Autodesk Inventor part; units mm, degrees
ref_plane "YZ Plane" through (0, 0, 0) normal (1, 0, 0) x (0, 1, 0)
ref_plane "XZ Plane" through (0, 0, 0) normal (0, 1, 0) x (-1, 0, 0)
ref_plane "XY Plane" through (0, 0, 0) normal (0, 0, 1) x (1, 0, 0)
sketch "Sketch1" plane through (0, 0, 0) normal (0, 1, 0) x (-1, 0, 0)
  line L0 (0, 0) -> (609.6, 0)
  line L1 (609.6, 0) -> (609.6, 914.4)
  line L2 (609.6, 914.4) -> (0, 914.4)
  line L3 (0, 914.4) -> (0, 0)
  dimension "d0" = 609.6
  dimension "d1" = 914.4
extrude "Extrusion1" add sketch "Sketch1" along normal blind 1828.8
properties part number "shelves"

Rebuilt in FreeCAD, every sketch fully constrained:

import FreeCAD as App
import Part
import Sketcher

V = App.Vector
Q = App.Units.Quantity


def add_polygon(sketch, points):
    """Adds a closed chain of lines whose ends are joined by coincident constraints."""
    first, n = sketch.GeometryCount, len(points)
    for a, b in zip(points, points[1:] + points[:1]):
        sketch.addGeometry(Part.LineSegment(App.Vector(*a, 0), App.Vector(*b, 0)), False)
    for i in range(n):
        sketch.addConstraint(Sketcher.Constraint("Coincident", first + i, 2, first + (i + 1) % n, 1))

doc = App.newDocument("Part")
body = doc.addObject("PartDesign::Body", "Body")

sketch1 = body.newObject("Sketcher::SketchObject", "Sketch")
sketch1.AttachmentSupport = (doc.getObject("XZ_Plane"), [""])
sketch1.MapMode = "FlatFace"
add_polygon(sketch1, [(0, 914.4), (0, 0), (-609.6, 0), (-609.6, 914.4)])
sketch1.addConstraint([
    Sketcher.Constraint("Vertical", 0),
    Sketcher.Constraint("Horizontal", 1),
    Sketcher.Constraint("Vertical", 2),
    Sketcher.Constraint("Horizontal", 3),
    Sketcher.Constraint("Coincident", 0, 2, -1, 1),
    Sketcher.Constraint("DistanceX", 1, 2, 1, 1, Q("24 in")),
    Sketcher.Constraint("DistanceY", 0, 2, 0, 1, Q("36 in")),
])
pad1 = body.newObject("PartDesign::Pad", "Pad")
pad1.Profile = sketch1
pad1.Length = Q("72 in")
pad1.Reversed = True

doc.recompute()
